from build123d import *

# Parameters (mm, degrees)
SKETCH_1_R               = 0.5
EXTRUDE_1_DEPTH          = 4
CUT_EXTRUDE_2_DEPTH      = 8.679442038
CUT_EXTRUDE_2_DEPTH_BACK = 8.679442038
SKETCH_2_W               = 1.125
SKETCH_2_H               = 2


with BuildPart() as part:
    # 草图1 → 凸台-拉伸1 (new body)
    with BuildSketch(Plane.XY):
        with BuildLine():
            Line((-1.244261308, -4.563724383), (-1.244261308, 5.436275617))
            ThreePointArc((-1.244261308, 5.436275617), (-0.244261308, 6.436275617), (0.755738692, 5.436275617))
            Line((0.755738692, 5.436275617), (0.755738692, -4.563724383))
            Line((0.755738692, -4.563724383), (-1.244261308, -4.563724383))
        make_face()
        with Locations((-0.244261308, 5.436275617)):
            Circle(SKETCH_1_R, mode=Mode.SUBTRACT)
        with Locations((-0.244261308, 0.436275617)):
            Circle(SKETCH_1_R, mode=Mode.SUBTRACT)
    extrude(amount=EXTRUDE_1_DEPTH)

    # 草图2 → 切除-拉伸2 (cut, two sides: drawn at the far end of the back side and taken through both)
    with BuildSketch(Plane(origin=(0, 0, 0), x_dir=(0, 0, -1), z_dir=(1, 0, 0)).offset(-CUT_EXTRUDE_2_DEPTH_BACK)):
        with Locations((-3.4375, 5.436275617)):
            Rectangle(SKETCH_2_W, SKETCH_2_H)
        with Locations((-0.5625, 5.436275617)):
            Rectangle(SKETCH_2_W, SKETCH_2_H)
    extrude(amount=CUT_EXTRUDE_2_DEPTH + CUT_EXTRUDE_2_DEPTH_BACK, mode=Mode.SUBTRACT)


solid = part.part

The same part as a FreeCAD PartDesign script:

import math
import FreeCAD as App
import Part
import Sketcher

doc = App.newDocument("Part")
params = doc.addObject("Spreadsheet::Sheet", "Params")
for row, (alias, value) in enumerate([
    ("sketch1_diameter", "1 mm"),
    ("sketch1_radius", "1 mm"),
    ("sketch1_height", "10 mm"),
    ("pad1_length", "4 mm"),
    ("sketch2_width", "2 mm"),
], start=1):
    params.set(f"A{row}", alias)
    params.set(f"B{row}", "=" + value)
    params.setAlias(f"B{row}", alias)

body = doc.addObject("PartDesign::Body", "Body")

# Sketch on XY plane
sketch1 = body.newObject("Sketcher::SketchObject", "Sketch")
sketch1.AttachmentSupport = (doc.getObject("XY_Plane"), [""])
sketch1.MapMode = "FlatFace"
sketch1.addGeometry([
    Part.LineSegment(App.Vector(-1.244261, 5.436276, 0), App.Vector(-1.244261, -4.563724, 0)),  # 0
    Part.LineSegment(App.Vector(-1.244261, -4.563724, 0), App.Vector(0.755739, -4.563724, 0)),  # 1
    Part.LineSegment(App.Vector(0.755739, -4.563724, 0), App.Vector(0.755739, 5.436276, 0)),  # 2
    Part.ArcOfCircle(Part.Circle(App.Vector(-0.244261, 5.436276, 0), App.Vector(0, 0, 1), 1), math.radians(0), math.radians(180)),  # 3
    Part.Circle(App.Vector(-0.244261, 0.436276, 0), App.Vector(0, 0, 1), 0.5),  # 4
    Part.Circle(App.Vector(-0.244261, 5.436276, 0), App.Vector(0, 0, 1), 0.5),  # 5
], False)
sketch1.addConstraint([
    Sketcher.Constraint("Coincident", 0, 2, 1, 1),
    Sketcher.Constraint("Coincident", 1, 2, 2, 1),
    Sketcher.Constraint("Tangent", 2, 2, 3, 1),
    Sketcher.Constraint("Tangent", 3, 2, 0, 1),
    Sketcher.Constraint("Vertical", 0),
    Sketcher.Constraint("Horizontal", 1),
    Sketcher.Constraint("Vertical", 2),
    Sketcher.Constraint("Coincident", 5, 3, 3, 3),
    Sketcher.Constraint("Equal", 4, 5),
    Sketcher.Constraint("Vertical", 3, 3, 4, 3),
    Sketcher.Constraint("Diameter", 4, 1.0),
    Sketcher.Constraint("Radius", 3, 1.0),
    Sketcher.Constraint("DistanceY", 0, 2, 0, 1, 10.0),
    Sketcher.Constraint("DistanceY", 4, 3, 3, 3, 5.0),
    Sketcher.Constraint("DistanceX", 3, 3, -1, 1, 0.244261),
    Sketcher.Constraint("DistanceY", -1, 1, 3, 3, 5.436276),
])
sketch1.setExpression("Constraints[10]", "Params.sketch1_diameter")
sketch1.setExpression("Constraints[11]", "Params.sketch1_radius")
sketch1.setExpression("Constraints[12]", "Params.sketch1_height")
pad1 = body.newObject("PartDesign::Pad", "Pad")
pad1.Profile = sketch1
pad1.setExpression("Length", "Params.pad1_length")

# Sketch on YZ plane
sketch2 = body.newObject("Sketcher::SketchObject", "Sketch001")
sketch2.AttachmentSupport = (doc.getObject("YZ_Plane"), [""])
sketch2.MapMode = "FlatFace"
sketch2.addGeometry([
    Part.LineSegment(App.Vector(6.436276, 4, 0), App.Vector(4.436276, 4, 0)),  # 0
    Part.LineSegment(App.Vector(4.436276, 4, 0), App.Vector(4.436276, 2.875, 0)),  # 1
    Part.LineSegment(App.Vector(4.436276, 2.875, 0), App.Vector(6.436276, 2.875, 0)),  # 2
    Part.LineSegment(App.Vector(6.436276, 2.875, 0), App.Vector(6.436276, 4, 0)),  # 3
    Part.LineSegment(App.Vector(6.436276, 1.125, 0), App.Vector(4.436276, 1.125, 0)),  # 4
    Part.LineSegment(App.Vector(4.436276, 1.125, 0), App.Vector(4.436276, 0, 0)),  # 5
    Part.LineSegment(App.Vector(4.436276, 0, 0), App.Vector(6.436276, 0, 0)),  # 6
    Part.LineSegment(App.Vector(6.436276, 0, 0), App.Vector(6.436276, 1.125, 0)),  # 7
], False)
sketch2.addConstraint([
    Sketcher.Constraint("Coincident", 0, 2, 1, 1),
    Sketcher.Constraint("Coincident", 1, 2, 2, 1),
    Sketcher.Constraint("Coincident", 2, 2, 3, 1),
    Sketcher.Constraint("Coincident", 3, 2, 0, 1),
    Sketcher.Constraint("Coincident", 4, 2, 5, 1),
    Sketcher.Constraint("Coincident", 5, 2, 6, 1),
    Sketcher.Constraint("Coincident", 6, 2, 7, 1),
    Sketcher.Constraint("Coincident", 7, 2, 4, 1),
    Sketcher.Constraint("Horizontal", 0),
    Sketcher.Constraint("Vertical", 1),
    Sketcher.Constraint("Horizontal", 2),
    Sketcher.Constraint("Vertical", 3),
    Sketcher.Constraint("Horizontal", 4),
    Sketcher.Constraint("Vertical", 5),
    Sketcher.Constraint("Horizontal", 6),
    Sketcher.Constraint("Vertical", 7),
    Sketcher.Constraint("PointOnObject", 5, 2, -1),
    Sketcher.Constraint("Vertical", 1, 2, 4, 2),
    Sketcher.Constraint("Vertical", 3, 2, 6, 2),
    Sketcher.Constraint("Equal", 3, 5),
    Sketcher.Constraint("DistanceX", 0, 2, 0, 1, 2.0),
    Sketcher.Constraint("DistanceY", -1, 1, 0, 2, 4.0),
    Sketcher.Constraint("DistanceY", 1, 2, 1, 1, 1.125),
    Sketcher.Constraint("DistanceX", -1, 1, 0, 2, 4.436276),
])
sketch2.setExpression("Constraints[20]", "Params.sketch2_width")
pocket1 = body.newObject("PartDesign::Pocket", "Pocket")
pocket1.Profile = sketch2
pocket1.Type = "ThroughAll"
pocket1.Midplane = True

doc.recompute()
